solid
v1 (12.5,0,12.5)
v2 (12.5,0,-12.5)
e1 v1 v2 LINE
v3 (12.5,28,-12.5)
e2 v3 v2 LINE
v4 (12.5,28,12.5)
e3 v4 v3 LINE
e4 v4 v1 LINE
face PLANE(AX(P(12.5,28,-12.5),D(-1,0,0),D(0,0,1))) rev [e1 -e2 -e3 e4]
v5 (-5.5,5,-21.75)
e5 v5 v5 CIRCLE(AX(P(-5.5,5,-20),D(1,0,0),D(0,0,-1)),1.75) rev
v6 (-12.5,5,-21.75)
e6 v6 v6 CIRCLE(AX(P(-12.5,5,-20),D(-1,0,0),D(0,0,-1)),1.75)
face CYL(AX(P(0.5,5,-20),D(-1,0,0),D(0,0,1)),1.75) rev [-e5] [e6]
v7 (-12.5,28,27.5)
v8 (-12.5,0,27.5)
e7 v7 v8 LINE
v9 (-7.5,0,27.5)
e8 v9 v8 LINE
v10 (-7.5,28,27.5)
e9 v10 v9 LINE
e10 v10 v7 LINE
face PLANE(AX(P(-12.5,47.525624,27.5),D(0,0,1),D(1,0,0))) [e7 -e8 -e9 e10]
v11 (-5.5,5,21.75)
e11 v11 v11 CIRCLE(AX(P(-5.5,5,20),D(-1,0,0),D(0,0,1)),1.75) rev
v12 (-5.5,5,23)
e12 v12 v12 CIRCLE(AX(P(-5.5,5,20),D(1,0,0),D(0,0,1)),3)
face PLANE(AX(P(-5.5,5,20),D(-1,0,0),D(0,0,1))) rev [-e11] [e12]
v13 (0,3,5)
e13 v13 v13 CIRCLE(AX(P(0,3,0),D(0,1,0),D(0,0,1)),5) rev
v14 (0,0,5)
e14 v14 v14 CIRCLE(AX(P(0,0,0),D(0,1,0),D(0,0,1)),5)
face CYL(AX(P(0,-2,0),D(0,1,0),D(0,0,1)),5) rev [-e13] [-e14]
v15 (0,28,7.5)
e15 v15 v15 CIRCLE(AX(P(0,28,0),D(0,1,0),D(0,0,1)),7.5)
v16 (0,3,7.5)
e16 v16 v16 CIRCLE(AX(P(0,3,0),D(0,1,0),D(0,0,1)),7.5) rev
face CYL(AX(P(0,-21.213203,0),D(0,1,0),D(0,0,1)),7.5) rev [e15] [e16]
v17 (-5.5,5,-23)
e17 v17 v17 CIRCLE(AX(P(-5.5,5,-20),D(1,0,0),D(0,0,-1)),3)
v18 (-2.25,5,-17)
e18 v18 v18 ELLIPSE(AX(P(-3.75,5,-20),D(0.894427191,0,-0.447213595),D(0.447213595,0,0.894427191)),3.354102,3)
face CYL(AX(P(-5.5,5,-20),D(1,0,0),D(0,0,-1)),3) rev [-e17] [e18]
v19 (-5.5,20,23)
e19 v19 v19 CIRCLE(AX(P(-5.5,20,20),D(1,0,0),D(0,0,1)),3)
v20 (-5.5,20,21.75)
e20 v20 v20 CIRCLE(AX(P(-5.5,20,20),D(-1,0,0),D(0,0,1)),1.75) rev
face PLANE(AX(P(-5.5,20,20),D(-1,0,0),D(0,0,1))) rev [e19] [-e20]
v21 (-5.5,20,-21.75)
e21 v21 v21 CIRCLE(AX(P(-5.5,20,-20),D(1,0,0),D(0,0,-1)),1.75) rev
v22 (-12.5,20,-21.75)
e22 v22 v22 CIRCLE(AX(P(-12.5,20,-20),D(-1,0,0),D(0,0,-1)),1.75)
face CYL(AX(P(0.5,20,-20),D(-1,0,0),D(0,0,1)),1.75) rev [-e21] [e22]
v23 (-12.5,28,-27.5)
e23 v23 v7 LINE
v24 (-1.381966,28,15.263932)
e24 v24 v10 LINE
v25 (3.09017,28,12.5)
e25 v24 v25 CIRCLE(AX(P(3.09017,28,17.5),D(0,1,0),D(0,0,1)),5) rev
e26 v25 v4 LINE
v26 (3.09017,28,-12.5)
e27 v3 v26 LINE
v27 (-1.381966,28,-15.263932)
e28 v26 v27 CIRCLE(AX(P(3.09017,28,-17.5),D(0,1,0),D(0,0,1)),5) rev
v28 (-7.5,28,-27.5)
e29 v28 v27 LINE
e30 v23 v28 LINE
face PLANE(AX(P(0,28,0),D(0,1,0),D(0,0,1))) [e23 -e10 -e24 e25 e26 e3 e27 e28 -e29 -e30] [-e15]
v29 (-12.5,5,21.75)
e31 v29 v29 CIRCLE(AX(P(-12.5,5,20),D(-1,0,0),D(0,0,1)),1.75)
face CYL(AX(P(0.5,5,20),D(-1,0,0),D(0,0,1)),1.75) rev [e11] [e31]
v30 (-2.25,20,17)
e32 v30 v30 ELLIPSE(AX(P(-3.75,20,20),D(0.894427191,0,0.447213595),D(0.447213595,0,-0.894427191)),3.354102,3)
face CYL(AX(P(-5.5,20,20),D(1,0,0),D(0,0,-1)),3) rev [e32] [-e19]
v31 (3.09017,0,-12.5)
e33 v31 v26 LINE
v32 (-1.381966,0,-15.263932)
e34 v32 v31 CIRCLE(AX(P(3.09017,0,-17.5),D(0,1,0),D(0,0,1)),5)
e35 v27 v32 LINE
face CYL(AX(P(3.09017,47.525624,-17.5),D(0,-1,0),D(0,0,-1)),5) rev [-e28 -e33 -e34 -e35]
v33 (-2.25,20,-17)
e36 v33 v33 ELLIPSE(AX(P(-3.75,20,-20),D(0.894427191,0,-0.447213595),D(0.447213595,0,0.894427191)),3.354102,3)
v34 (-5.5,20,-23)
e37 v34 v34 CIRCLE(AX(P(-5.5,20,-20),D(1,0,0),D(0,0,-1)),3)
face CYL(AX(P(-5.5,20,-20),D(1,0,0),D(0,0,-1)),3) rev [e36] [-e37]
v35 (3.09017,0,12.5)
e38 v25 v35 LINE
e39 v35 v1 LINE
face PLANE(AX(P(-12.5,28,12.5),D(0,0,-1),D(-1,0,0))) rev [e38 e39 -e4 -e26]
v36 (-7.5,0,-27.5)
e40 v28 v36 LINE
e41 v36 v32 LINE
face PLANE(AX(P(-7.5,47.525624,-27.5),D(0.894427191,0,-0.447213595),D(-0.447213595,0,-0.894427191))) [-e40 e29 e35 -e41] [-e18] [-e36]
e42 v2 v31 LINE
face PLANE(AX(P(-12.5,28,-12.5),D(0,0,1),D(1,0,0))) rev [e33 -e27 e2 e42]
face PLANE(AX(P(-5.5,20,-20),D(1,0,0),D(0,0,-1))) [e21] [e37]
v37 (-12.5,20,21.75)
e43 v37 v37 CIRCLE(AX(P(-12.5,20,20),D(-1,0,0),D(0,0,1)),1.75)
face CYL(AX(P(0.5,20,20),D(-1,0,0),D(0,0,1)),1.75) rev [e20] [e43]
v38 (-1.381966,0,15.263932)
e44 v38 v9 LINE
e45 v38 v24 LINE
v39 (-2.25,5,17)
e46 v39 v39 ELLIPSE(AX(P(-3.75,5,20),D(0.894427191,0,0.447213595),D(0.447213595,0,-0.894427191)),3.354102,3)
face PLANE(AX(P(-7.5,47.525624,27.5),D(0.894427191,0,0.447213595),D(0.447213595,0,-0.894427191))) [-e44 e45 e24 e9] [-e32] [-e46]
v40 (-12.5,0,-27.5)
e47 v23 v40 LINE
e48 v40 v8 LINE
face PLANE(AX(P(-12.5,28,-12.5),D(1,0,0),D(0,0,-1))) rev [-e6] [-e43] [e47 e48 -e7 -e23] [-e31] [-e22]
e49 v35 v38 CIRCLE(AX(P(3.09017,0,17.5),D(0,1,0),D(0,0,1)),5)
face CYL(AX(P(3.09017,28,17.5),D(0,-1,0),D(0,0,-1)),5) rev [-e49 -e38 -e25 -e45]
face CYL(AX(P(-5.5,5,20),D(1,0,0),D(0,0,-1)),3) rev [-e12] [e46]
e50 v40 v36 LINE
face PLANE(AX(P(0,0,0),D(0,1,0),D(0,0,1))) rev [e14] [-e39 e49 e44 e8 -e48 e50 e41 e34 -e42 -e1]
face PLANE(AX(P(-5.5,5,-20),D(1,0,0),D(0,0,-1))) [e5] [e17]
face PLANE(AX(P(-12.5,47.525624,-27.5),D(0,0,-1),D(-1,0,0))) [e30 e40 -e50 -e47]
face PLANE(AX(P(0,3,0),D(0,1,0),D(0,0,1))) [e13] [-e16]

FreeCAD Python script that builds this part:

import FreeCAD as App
import Part
import Sketcher


def edges_at(feature, points):
    """Names of the edges that pass closest to the given points."""
    edges = feature.Shape.Edges
    near = lambda p: min(range(len(edges)), key=lambda i: edges[i].distToShape(Part.Vertex(*p))[0])
    return sorted({f"Edge{near(p) + 1}" for p in points})

doc = App.newDocument("Part")
body = doc.addObject("PartDesign::Body", "Body")

sketch1 = body.newObject("Sketcher::SketchObject", "Sketch")
sketch1.AttachmentSupport = (doc.getObject("XZ_Plane"), [""])
sketch1.MapMode = "FlatFace"
sketch1.addGeometry(Part.LineSegment(App.Vector(-12, -12, 0), App.Vector(-12, 12, 0)), False)
sketch1.addGeometry(Part.LineSegment(App.Vector(-12, 12, 0), App.Vector(12, 12, 0)), False)
sketch1.addGeometry(Part.LineSegment(App.Vector(12, 12, 0), App.Vector(12, -12, 0)), False)
sketch1.addGeometry(Part.LineSegment(App.Vector(12, -12, 0), App.Vector(-12, -12, 0)), False)
sketch1.addConstraint(Sketcher.Constraint("Coincident", 0, 2, 1, 1))
sketch1.addConstraint(Sketcher.Constraint("Coincident", 1, 2, 2, 1))
sketch1.addConstraint(Sketcher.Constraint("Coincident", 2, 2, 3, 1))
sketch1.addConstraint(Sketcher.Constraint("Coincident", 3, 2, 0, 1))
sketch1.addConstraint(Sketcher.Constraint("Vertical", 0))
sketch1.addConstraint(Sketcher.Constraint("Horizontal", 1))
sketch1.addConstraint(Sketcher.Constraint("Vertical", 2))
sketch1.addConstraint(Sketcher.Constraint("Horizontal", 3))
sketch1.addConstraint(Sketcher.Constraint("Symmetric", 0, 2, 2, 2, -1, 1))
sketch1.addConstraint(Sketcher.Constraint("Equal", 3, 0))
sketch1.addConstraint(Sketcher.Constraint("DistanceX", 1, 1, 1, 2, 25.0))
pad1 = body.newObject("PartDesign::Pad", "Pad")
pad1.Profile = sketch1
pad1.Length = 28
pad1.Reversed = True

sketch2 = body.newObject("Sketcher::SketchObject", "Sketch001")
sketch2.AttachmentSupport = (doc.getObject("XZ_Plane"), [""])
sketch2.MapMode = "FlatFace"
sketch2.AttachmentOffset = App.Placement(App.Vector(0, 0, -28), App.Rotation())
sketch2.addGeometry(Part.Circle(App.Vector(0, 0, 0), App.Vector(0, 0, 1), 5), False)
sketch2.addConstraint(Sketcher.Constraint("Coincident", 0, 3, -1, 1))
sketch2.addConstraint(Sketcher.Constraint("Diameter", 0, 10.0))
pocket1 = body.newObject("PartDesign::Pocket", "Pocket")
pocket1.Profile = sketch2
pocket1.Length = 30
pocket1.Reversed = True

sketch3 = body.newObject("Sketcher::SketchObject", "Sketch002")
sketch3.AttachmentSupport = (doc.getObject("XZ_Plane"), [""])
sketch3.MapMode = "FlatFace"
sketch3.AttachmentOffset = App.Placement(App.Vector(0, 0, -28), App.Rotation())
sketch3.addGeometry(Part.Circle(App.Vector(0, 0, 0), App.Vector(0, 0, 1), 8), False)
sketch3.addConstraint(Sketcher.Constraint("Coincident", 0, 3, -1, 1))
sketch3.addConstraint(Sketcher.Constraint("Diameter", 0, 15.0))
pocket2 = body.newObject("PartDesign::Pocket", "Pocket001")
pocket2.Profile = sketch3
pocket2.Length = 25
pocket2.Reversed = True

sketch4 = body.newObject("Sketcher::SketchObject", "Sketch003")
sketch4.AttachmentSupport = (doc.getObject("XZ_Plane"), [""])
sketch4.MapMode = "FlatFace"
sketch4.addGeometry(Part.LineSegment(App.Vector(-12, -12, 0), App.Vector(-12, -28, 0)), False)
sketch4.addGeometry(Part.LineSegment(App.Vector(-12, -28, 0), App.Vector(-8, -28, 0)), False)
sketch4.addGeometry(Part.LineSegment(App.Vector(-8, -28, 0), App.Vector(0, -12, 0)), False)
sketch4.addGeometry(Part.LineSegment(App.Vector(0, -12, 0), App.Vector(-12, -12, 0)), False)
sketch4.addGeometry(Part.LineSegment(App.Vector(0, 12, 0), App.Vector(-8, 28, 0)), False)
sketch4.addGeometry(Part.LineSegment(App.Vector(-8, 28, 0), App.Vector(-12, 28, 0)), False)
sketch4.addGeometry(Part.LineSegment(App.Vector(-12, 28, 0), App.Vector(-12, 12, 0)), False)
sketch4.addGeometry(Part.LineSegment(App.Vector(-12, 12, 0), App.Vector(0, 12, 0)), False)
sketch4.addConstraint(Sketcher.Constraint("Coincident", 0, 2, 1, 1))
sketch4.addConstraint(Sketcher.Constraint("Coincident", 1, 2, 2, 1))
sketch4.addConstraint(Sketcher.Constraint("Coincident", 2, 2, 3, 1))
sketch4.addConstraint(Sketcher.Constraint("Coincident", 3, 2, 0, 1))
sketch4.addConstraint(Sketcher.Constraint("Coincident", 4, 2, 5, 1))
sketch4.addConstraint(Sketcher.Constraint("Coincident", 5, 2, 6, 1))
sketch4.addConstraint(Sketcher.Constraint("Coincident", 6, 2, 7, 1))
sketch4.addConstraint(Sketcher.Constraint("Coincident", 7, 2, 4, 1))
sketch4.addConstraint(Sketcher.Constraint("Vertical", 0))
sketch4.addConstraint(Sketcher.Constraint("Horizontal", 1))
sketch4.addConstraint(Sketcher.Constraint("Horizontal", 3))
sketch4.addConstraint(Sketcher.Constraint("Horizontal", 5))
sketch4.addConstraint(Sketcher.Constraint("Vertical", 6))
sketch4.addConstraint(Sketcher.Constraint("Horizontal", 7))
sketch4.addConstraint(Sketcher.Constraint("Symmetric", 2, 2, 7, 2, -1, 1))
sketch4.addConstraint(Sketcher.Constraint("Symmetric", 1, 2, 4, 2, -1))
sketch4.addConstraint(Sketcher.Constraint("PointOnObject", 2, 2, -2))
sketch4.addConstraint(Sketcher.Constraint("Vertical", 3, 2, 5, 2))
sketch4.addConstraint(Sketcher.Constraint("DistanceX", 1, 1, 1, 2, 5.0))
sketch4.addConstraint(Sketcher.Constraint("DistanceY", 0, 2, 0, 1, 15.0))
sketch4.addConstraint(Sketcher.Constraint("DistanceX", 3, 2, 3, 1, 12.5))
sketch4.addConstraint(Sketcher.Constraint("DistanceY", 3, 2, 4, 2, 40.0))
pad2 = body.newObject("PartDesign::Pad", "Pad001")
pad2.Profile = sketch4
pad2.Length = 28
pad2.Reversed = True
doc.recompute()

fillet = body.newObject("PartDesign::Fillet", "Fillet")
fillet.Base = (pad2, edges_at(pad2, [(0, 14, -12.5), (0, 14, 12.5)]))
fillet.Radius = 5

sketch5 = body.newObject("Sketcher::SketchObject", "Sketch004")
sketch5.AttachmentSupport = (doc.getObject("YZ_Plane"), [""])
sketch5.MapMode = "FlatFace"
sketch5.AttachmentOffset = App.Placement(App.Vector(0, 0, -12.5), App.Rotation())
sketch5.addGeometry(Part.Circle(App.Vector(20, 20, 0), App.Vector(0, 0, 1), 1.8), False)
sketch5.addGeometry(Part.Circle(App.Vector(5, 20, 0), App.Vector(0, 0, 1), 1.8), False)
sketch5.addGeometry(Part.Circle(App.Vector(20, -20, 0), App.Vector(0, 0, 1), 1.8), False)
sketch5.addGeometry(Part.Circle(App.Vector(5, -20, 0), App.Vector(0, 0, 1), 1.8), False)
sketch5.addConstraint(Sketcher.Constraint("Equal", 0, 1))
sketch5.addConstraint(Sketcher.Constraint("Equal", 1, 2))
sketch5.addConstraint(Sketcher.Constraint("Equal", 2, 3))
sketch5.addConstraint(Sketcher.Constraint("Symmetric", 0, 3, 2, 3, -1))
sketch5.addConstraint(Sketcher.Constraint("Symmetric", 1, 3, 3, 3, -1))
sketch5.addConstraint(Sketcher.Constraint("Horizontal", 0, 3, 1, 3))
sketch5.addConstraint(Sketcher.Constraint("Diameter", 0, 3.5))
sketch5.addConstraint(Sketcher.Constraint("DistanceX", -1, 1, 0, 3, 20.0))
sketch5.addConstraint(Sketcher.Constraint("DistanceY", -1, 1, 0, 3, 20.0))
sketch5.addConstraint(Sketcher.Constraint("DistanceX", -1, 1, 1, 3, 5.0))
pocket3 = body.newObject("PartDesign::Pocket", "Pocket002")
pocket3.Profile = sketch5
pocket3.Length = 13
pocket3.Reversed = True

sketch6 = body.newObject("Sketcher::SketchObject", "Sketch005")
sketch6.AttachmentSupport = (doc.getObject("YZ_Plane"), [""])
sketch6.MapMode = "FlatFace"
sketch6.AttachmentOffset = App.Placement(App.Vector(0, 0, 12.5), App.Rotation())
sketch6.addGeometry(Part.Circle(App.Vector(20, -20, 0), App.Vector(0, 0, 1), 3), False)
sketch6.addGeometry(Part.Circle(App.Vector(5, -20, 0), App.Vector(0, 0, 1), 3), False)
sketch6.addGeometry(Part.Circle(App.Vector(20, 20, 0), App.Vector(0, 0, 1), 3), False)
sketch6.addGeometry(Part.Circle(App.Vector(5, 20, 0), App.Vector(0, 0, 1), 3), False)
sketch6.addConstraint(Sketcher.Constraint("Equal", 0, 1))
sketch6.addConstraint(Sketcher.Constraint("Equal", 1, 2))
sketch6.addConstraint(Sketcher.Constraint("Equal", 2, 3))
sketch6.addConstraint(Sketcher.Constraint("Symmetric", 0, 3, 2, 3, -1))
sketch6.addConstraint(Sketcher.Constraint("Symmetric", 1, 3, 3, 3, -1))
sketch6.addConstraint(Sketcher.Constraint("Horizontal", 0, 3, 1, 3))
sketch6.addConstraint(Sketcher.Constraint("Diameter", 0, 6.0))
sketch6.addConstraint(Sketcher.Constraint("DistanceX", -1, 1, 0, 3, 20.0))
sketch6.addConstraint(Sketcher.Constraint("DistanceY", 0, 3, -1, 1, 20.0))
sketch6.addConstraint(Sketcher.Constraint("DistanceX", -1, 1, 1, 3, 5.0))
pocket4 = body.newObject("PartDesign::Pocket", "Pocket003")
pocket4.Profile = sketch6
pocket4.Length = 18

doc.recompute()
